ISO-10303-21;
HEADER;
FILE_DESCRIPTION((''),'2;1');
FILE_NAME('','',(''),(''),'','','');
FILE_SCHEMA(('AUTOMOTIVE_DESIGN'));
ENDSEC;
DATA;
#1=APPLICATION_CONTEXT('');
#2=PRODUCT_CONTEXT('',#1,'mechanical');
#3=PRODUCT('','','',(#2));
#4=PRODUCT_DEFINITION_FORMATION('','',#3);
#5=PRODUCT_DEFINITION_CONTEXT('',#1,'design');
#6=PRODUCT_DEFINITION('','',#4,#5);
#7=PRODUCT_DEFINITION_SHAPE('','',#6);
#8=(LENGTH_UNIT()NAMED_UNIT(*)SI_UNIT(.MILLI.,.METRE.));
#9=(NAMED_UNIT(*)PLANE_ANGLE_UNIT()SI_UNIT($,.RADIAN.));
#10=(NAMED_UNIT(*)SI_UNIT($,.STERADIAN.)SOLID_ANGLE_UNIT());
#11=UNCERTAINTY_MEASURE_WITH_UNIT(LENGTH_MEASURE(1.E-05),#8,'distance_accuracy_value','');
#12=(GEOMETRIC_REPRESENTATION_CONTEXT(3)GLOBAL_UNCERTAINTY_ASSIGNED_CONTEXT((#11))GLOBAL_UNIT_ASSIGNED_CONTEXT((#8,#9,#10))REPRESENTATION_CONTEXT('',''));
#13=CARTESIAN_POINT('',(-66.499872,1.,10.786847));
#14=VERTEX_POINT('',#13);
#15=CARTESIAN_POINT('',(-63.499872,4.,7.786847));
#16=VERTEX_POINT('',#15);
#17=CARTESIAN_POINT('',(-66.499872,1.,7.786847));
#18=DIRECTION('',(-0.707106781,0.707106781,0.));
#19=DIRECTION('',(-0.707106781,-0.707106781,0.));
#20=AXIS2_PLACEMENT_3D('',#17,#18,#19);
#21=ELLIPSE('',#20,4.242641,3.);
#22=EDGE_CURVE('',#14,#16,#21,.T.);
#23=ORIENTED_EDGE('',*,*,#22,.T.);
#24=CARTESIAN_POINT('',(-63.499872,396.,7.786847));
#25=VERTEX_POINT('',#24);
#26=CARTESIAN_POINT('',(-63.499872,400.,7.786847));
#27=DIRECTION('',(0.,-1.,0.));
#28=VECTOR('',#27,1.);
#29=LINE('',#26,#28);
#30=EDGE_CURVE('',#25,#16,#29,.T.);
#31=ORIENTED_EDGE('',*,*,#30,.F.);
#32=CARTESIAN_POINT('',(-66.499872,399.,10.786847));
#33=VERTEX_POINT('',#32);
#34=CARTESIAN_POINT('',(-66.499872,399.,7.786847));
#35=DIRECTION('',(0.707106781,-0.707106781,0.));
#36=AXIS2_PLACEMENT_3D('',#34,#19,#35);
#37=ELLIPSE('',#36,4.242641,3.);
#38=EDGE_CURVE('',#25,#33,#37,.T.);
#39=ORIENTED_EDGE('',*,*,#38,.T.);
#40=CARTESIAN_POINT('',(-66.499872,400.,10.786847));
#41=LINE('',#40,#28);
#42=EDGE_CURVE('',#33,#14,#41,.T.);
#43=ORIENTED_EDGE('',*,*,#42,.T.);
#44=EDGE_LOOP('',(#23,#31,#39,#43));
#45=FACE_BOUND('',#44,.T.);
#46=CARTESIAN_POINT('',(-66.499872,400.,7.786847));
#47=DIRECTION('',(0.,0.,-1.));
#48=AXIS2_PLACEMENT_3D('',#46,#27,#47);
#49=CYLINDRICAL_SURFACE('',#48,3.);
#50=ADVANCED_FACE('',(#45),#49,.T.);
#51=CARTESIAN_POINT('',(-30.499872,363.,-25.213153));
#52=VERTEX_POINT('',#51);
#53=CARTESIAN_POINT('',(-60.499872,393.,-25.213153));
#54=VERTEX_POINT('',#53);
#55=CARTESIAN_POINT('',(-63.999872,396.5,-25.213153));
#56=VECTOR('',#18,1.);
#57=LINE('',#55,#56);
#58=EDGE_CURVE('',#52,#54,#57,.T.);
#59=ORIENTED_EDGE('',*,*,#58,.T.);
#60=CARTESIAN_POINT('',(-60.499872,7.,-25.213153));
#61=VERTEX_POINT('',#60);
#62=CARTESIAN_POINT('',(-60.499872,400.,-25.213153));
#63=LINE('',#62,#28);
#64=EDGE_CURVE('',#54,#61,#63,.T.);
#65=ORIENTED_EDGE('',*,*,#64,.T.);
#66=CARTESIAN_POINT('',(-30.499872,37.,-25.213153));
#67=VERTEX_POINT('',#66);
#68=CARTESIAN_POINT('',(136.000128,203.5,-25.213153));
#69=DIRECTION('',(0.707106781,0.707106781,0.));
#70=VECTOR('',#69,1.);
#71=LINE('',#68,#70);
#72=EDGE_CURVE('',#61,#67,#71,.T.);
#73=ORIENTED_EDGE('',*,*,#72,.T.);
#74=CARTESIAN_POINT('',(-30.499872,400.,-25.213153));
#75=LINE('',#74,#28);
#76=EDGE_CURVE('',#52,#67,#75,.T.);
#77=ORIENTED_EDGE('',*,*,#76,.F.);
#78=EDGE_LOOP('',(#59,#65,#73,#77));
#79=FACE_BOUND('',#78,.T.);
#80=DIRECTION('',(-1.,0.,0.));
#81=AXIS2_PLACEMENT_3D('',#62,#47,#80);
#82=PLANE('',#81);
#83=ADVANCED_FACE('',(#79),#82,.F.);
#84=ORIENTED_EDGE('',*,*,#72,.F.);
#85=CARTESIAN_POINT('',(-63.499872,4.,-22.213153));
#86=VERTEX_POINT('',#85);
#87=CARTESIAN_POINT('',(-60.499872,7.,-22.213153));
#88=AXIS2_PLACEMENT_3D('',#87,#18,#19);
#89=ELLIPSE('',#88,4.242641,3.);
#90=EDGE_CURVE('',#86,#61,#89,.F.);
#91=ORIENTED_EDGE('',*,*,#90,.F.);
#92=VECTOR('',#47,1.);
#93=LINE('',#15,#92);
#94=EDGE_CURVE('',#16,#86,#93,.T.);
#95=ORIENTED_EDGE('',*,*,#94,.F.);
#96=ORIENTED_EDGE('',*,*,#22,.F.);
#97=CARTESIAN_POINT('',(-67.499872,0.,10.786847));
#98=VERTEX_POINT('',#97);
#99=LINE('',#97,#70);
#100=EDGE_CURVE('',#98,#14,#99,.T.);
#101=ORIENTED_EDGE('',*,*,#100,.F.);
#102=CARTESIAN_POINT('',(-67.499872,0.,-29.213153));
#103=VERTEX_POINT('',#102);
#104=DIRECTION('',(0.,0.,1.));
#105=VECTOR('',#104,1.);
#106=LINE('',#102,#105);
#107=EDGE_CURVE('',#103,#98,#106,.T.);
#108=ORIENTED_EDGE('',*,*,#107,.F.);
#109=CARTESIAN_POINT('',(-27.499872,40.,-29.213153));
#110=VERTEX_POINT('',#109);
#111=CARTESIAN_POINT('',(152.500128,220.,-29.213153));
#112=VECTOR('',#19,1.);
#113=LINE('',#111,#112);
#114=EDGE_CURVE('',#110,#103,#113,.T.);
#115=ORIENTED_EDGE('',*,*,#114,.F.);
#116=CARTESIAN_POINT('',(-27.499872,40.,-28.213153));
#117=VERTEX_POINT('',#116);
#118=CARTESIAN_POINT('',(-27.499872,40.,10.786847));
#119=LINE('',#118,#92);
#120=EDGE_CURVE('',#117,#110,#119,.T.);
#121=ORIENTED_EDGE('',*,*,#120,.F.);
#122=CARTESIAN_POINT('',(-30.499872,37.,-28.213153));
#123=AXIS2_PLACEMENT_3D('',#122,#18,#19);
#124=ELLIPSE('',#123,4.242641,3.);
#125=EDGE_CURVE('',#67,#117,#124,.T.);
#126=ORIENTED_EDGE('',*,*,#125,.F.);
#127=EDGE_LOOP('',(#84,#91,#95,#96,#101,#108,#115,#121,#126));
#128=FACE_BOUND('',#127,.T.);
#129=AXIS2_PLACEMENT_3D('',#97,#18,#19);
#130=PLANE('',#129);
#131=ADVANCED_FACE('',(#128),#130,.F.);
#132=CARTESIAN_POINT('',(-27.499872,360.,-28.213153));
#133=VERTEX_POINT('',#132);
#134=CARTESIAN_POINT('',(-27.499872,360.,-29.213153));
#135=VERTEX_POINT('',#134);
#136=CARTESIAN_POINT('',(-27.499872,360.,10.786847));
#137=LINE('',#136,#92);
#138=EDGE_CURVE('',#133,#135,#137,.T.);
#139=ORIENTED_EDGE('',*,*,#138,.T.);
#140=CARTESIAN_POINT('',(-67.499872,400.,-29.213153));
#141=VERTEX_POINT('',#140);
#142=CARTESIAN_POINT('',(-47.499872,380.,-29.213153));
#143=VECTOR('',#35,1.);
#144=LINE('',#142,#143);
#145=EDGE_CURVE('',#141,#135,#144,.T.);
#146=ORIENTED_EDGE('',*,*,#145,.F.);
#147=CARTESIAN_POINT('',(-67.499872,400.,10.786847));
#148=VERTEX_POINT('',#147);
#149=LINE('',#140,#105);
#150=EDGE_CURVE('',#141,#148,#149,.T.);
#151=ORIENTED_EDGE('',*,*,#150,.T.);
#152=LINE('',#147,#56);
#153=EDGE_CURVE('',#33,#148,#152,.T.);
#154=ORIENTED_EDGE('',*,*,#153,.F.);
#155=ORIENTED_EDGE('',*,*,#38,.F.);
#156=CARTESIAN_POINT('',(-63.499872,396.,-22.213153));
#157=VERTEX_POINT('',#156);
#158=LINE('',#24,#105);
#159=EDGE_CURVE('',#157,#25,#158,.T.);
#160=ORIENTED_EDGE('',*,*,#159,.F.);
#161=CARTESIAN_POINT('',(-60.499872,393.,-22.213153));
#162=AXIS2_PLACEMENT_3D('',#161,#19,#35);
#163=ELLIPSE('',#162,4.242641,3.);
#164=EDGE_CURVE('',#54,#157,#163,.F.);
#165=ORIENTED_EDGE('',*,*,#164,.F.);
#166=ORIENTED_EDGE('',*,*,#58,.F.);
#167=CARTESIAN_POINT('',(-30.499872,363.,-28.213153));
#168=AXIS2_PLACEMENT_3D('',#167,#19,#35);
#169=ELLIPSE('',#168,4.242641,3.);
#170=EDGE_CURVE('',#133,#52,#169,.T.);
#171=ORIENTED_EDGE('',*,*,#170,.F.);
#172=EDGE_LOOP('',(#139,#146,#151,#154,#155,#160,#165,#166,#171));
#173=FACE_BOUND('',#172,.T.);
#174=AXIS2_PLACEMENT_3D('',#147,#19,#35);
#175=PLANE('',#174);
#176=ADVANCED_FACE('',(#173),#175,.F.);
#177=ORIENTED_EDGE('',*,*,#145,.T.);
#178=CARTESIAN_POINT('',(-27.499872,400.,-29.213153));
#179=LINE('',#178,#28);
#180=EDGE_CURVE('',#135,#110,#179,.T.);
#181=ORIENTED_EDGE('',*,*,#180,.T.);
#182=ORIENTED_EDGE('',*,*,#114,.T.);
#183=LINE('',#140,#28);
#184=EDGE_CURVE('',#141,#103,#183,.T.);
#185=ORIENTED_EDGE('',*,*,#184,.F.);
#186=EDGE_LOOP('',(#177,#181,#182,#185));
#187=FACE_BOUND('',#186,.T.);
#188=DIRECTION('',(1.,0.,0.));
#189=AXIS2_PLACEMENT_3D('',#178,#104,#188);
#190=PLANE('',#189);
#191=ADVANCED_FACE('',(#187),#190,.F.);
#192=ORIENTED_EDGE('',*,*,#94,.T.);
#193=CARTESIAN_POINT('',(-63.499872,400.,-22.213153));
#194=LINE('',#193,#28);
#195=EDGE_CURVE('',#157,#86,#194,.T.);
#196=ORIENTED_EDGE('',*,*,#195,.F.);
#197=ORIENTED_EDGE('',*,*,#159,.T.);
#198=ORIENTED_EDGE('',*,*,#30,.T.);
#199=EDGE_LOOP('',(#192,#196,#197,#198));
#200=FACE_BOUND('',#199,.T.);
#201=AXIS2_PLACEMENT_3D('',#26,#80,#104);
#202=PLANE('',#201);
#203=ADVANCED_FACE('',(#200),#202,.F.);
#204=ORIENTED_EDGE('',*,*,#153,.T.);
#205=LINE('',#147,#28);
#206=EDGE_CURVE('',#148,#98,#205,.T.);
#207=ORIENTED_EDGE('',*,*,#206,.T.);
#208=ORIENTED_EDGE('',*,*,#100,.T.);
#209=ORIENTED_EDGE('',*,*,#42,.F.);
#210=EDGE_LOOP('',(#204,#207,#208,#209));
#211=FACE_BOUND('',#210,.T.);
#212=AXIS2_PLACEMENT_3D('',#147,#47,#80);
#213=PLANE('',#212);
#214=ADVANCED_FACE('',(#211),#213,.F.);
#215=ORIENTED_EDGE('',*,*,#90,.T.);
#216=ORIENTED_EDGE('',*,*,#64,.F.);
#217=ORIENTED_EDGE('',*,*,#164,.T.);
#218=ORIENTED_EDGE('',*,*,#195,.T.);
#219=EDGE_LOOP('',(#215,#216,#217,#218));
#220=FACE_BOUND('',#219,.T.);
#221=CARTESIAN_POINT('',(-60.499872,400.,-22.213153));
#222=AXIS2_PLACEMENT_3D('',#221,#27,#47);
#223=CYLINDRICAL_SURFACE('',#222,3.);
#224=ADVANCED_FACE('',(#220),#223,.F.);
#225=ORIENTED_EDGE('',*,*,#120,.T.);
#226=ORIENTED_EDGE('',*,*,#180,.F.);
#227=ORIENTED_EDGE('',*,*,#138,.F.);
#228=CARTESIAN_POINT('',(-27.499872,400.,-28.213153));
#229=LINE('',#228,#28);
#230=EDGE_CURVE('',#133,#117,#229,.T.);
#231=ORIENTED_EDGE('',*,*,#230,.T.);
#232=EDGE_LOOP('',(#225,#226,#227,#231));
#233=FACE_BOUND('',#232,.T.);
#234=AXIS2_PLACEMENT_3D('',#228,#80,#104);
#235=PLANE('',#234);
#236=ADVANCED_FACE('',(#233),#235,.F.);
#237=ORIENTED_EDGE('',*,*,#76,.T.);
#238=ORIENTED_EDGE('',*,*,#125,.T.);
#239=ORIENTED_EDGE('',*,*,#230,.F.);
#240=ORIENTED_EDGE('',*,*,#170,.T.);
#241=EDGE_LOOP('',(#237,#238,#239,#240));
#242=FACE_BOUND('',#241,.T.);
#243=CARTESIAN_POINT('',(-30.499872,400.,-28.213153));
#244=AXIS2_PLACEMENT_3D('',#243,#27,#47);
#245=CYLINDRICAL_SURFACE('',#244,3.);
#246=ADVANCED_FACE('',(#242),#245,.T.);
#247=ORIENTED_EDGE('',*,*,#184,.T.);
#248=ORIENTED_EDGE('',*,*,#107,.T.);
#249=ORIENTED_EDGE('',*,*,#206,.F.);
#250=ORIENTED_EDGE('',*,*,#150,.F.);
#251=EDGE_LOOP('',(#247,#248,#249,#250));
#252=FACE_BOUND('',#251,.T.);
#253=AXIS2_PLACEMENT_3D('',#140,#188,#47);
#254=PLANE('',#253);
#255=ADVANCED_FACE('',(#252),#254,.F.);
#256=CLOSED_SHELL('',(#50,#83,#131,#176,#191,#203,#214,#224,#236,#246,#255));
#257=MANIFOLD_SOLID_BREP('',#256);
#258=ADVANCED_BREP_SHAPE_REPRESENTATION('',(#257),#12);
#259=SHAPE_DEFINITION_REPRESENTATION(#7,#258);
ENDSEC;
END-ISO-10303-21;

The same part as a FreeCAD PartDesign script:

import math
import FreeCAD as App
import Part
import Sketcher
Q = App.Units.Quantity


def add_polygon(sketch, points):
    """Adds a closed chain of lines whose ends are joined by coincident constraints."""
    first, n = sketch.GeometryCount, len(points)
    for a, b in zip(points, points[1:] + points[:1]):
        sketch.addGeometry(Part.LineSegment(App.Vector(*a, 0), App.Vector(*b, 0)), False)
    for i in range(n):
        sketch.addConstraint(Sketcher.Constraint("Coincident", first + i, 2, first + (i + 1) % n, 1))

doc = App.newDocument("Part")
body = doc.addObject("PartDesign::Body", "Body")

# Sketch on XZ plane
sketch1 = body.newObject("Sketcher::SketchObject", "Sketch")
sketch1.AttachmentSupport = (doc.getObject("XZ_Plane"), [""])
sketch1.MapMode = "FlatFace"
sketch1.addGeometry([
    Part.LineSegment(App.Vector(-27.5, -29.2, 0), App.Vector(-67.5, -29.2, 0)),  # 0
    Part.LineSegment(App.Vector(-67.5, -29.2, 0), App.Vector(-67.5, 10.8, 0)),  # 1
    Part.LineSegment(App.Vector(-67.5, 10.8, 0), App.Vector(-66.5, 10.8, 0)),  # 2
    Part.ArcOfCircle(Part.Circle(App.Vector(-66.5, 7.8, 0), App.Vector(0, 0, 1), 3), math.radians(0), math.radians(90)),  # 3
    Part.LineSegment(App.Vector(-63.5, 7.8, 0), App.Vector(-63.5, -22.2, 0)),  # 4
    Part.ArcOfCircle(Part.Circle(App.Vector(-60.5, -22.2, 0), App.Vector(0, 0, 1), 3), math.radians(180), math.radians(270)),  # 5
    Part.LineSegment(App.Vector(-60.5, -25.2, 0), App.Vector(-30.5, -25.2, 0)),  # 6
    Part.ArcOfCircle(Part.Circle(App.Vector(-30.5, -28.2, 0), App.Vector(0, 0, 1), 3), math.radians(0), math.radians(90)),  # 7
    Part.LineSegment(App.Vector(-27.5, -28.2, 0), App.Vector(-27.5, -29.2, 0)),  # 8
], False)
sketch1.addConstraint([
    Sketcher.Constraint("Coincident", 0, 2, 1, 1),
    Sketcher.Constraint("Coincident", 1, 2, 2, 1),
    Sketcher.Constraint("Tangent", 2, 2, 3, 2),
    Sketcher.Constraint("Tangent", 3, 1, 4, 1),
    Sketcher.Constraint("Tangent", 4, 2, 5, 1),
    Sketcher.Constraint("Tangent", 5, 2, 6, 1),
    Sketcher.Constraint("Tangent", 6, 2, 7, 2),
    Sketcher.Constraint("Tangent", 7, 1, 8, 1),
    Sketcher.Constraint("Coincident", 8, 2, 0, 1),
    Sketcher.Constraint("Horizontal", 0),
    Sketcher.Constraint("Vertical", 1),
    Sketcher.Constraint("Horizontal", 2),
    Sketcher.Constraint("Vertical", 4),
    Sketcher.Constraint("Horizontal", 6),
    Sketcher.Constraint("Vertical", 8),
    Sketcher.Constraint("Equal", 3, 5),
    Sketcher.Constraint("Equal", 5, 7),
    Sketcher.Constraint("Equal", 0, 1),
    Sketcher.Constraint("Equal", 6, 4),
    Sketcher.Constraint("Radius", 3, Q("3 mm")),
    Sketcher.Constraint("DistanceX", 0, 2, 0, 1, Q("40 mm")),
    Sketcher.Constraint("DistanceX", 2, 1, 2, 2, Q("1 mm")),
    Sketcher.Constraint("DistanceX", 3, 3, -1, 1, Q("66.499872 mm")),
    Sketcher.Constraint("DistanceY", -1, 1, 3, 3, Q("7.786847 mm")),
])
pad1 = body.newObject("PartDesign::Pad", "Pad")
pad1.Profile = sketch1
pad1.Length = 400
pad1.Reversed = True

# Sketch on XY plane
sketch2 = body.newObject("Sketcher::SketchObject", "Sketch001")
sketch2.AttachmentSupport = (doc.getObject("XY_Plane"), [""])
sketch2.MapMode = "FlatFace"
sketch2.AttachmentOffset = App.Placement(App.Vector(0, 0, -29.213153), App.Rotation())
add_polygon(sketch2, [(-67, 0), (-27, 40), (-27, 0)])  # lines 0-2
add_polygon(sketch2, [(-67, 400), (-27, 400), (-27, 360)])  # lines 3-5
sketch2.addConstraint([
    Sketcher.Constraint("Vertical", 1),
    Sketcher.Constraint("Horizontal", 2),
    Sketcher.Constraint("Horizontal", 3),
    Sketcher.Constraint("Vertical", 4),
    Sketcher.Constraint("PointOnObject", 1, 2, -1),
    Sketcher.Constraint("Perpendicular", 0, 5),
    Sketcher.Constraint("Vertical", 1, 2, 3, 2),
    Sketcher.Constraint("Vertical", 2, 2, 5, 2),
    Sketcher.Constraint("Equal", 3, 1),
    Sketcher.Constraint("DistanceX", 2, 2, 2, 1, Q("40 mm")),
    Sketcher.Constraint("DistanceY", -1, 1, 3, 2, Q("400 mm")),
    Sketcher.Constraint("DistanceX", 0, 2, -1, 1, Q("27.499872 mm")),
])
pocket1 = body.newObject("PartDesign::Pocket", "Pocket")
pocket1.Profile = sketch2
pocket1.Type = "ThroughAll"
pocket1.Midplane = True

doc.recompute()
